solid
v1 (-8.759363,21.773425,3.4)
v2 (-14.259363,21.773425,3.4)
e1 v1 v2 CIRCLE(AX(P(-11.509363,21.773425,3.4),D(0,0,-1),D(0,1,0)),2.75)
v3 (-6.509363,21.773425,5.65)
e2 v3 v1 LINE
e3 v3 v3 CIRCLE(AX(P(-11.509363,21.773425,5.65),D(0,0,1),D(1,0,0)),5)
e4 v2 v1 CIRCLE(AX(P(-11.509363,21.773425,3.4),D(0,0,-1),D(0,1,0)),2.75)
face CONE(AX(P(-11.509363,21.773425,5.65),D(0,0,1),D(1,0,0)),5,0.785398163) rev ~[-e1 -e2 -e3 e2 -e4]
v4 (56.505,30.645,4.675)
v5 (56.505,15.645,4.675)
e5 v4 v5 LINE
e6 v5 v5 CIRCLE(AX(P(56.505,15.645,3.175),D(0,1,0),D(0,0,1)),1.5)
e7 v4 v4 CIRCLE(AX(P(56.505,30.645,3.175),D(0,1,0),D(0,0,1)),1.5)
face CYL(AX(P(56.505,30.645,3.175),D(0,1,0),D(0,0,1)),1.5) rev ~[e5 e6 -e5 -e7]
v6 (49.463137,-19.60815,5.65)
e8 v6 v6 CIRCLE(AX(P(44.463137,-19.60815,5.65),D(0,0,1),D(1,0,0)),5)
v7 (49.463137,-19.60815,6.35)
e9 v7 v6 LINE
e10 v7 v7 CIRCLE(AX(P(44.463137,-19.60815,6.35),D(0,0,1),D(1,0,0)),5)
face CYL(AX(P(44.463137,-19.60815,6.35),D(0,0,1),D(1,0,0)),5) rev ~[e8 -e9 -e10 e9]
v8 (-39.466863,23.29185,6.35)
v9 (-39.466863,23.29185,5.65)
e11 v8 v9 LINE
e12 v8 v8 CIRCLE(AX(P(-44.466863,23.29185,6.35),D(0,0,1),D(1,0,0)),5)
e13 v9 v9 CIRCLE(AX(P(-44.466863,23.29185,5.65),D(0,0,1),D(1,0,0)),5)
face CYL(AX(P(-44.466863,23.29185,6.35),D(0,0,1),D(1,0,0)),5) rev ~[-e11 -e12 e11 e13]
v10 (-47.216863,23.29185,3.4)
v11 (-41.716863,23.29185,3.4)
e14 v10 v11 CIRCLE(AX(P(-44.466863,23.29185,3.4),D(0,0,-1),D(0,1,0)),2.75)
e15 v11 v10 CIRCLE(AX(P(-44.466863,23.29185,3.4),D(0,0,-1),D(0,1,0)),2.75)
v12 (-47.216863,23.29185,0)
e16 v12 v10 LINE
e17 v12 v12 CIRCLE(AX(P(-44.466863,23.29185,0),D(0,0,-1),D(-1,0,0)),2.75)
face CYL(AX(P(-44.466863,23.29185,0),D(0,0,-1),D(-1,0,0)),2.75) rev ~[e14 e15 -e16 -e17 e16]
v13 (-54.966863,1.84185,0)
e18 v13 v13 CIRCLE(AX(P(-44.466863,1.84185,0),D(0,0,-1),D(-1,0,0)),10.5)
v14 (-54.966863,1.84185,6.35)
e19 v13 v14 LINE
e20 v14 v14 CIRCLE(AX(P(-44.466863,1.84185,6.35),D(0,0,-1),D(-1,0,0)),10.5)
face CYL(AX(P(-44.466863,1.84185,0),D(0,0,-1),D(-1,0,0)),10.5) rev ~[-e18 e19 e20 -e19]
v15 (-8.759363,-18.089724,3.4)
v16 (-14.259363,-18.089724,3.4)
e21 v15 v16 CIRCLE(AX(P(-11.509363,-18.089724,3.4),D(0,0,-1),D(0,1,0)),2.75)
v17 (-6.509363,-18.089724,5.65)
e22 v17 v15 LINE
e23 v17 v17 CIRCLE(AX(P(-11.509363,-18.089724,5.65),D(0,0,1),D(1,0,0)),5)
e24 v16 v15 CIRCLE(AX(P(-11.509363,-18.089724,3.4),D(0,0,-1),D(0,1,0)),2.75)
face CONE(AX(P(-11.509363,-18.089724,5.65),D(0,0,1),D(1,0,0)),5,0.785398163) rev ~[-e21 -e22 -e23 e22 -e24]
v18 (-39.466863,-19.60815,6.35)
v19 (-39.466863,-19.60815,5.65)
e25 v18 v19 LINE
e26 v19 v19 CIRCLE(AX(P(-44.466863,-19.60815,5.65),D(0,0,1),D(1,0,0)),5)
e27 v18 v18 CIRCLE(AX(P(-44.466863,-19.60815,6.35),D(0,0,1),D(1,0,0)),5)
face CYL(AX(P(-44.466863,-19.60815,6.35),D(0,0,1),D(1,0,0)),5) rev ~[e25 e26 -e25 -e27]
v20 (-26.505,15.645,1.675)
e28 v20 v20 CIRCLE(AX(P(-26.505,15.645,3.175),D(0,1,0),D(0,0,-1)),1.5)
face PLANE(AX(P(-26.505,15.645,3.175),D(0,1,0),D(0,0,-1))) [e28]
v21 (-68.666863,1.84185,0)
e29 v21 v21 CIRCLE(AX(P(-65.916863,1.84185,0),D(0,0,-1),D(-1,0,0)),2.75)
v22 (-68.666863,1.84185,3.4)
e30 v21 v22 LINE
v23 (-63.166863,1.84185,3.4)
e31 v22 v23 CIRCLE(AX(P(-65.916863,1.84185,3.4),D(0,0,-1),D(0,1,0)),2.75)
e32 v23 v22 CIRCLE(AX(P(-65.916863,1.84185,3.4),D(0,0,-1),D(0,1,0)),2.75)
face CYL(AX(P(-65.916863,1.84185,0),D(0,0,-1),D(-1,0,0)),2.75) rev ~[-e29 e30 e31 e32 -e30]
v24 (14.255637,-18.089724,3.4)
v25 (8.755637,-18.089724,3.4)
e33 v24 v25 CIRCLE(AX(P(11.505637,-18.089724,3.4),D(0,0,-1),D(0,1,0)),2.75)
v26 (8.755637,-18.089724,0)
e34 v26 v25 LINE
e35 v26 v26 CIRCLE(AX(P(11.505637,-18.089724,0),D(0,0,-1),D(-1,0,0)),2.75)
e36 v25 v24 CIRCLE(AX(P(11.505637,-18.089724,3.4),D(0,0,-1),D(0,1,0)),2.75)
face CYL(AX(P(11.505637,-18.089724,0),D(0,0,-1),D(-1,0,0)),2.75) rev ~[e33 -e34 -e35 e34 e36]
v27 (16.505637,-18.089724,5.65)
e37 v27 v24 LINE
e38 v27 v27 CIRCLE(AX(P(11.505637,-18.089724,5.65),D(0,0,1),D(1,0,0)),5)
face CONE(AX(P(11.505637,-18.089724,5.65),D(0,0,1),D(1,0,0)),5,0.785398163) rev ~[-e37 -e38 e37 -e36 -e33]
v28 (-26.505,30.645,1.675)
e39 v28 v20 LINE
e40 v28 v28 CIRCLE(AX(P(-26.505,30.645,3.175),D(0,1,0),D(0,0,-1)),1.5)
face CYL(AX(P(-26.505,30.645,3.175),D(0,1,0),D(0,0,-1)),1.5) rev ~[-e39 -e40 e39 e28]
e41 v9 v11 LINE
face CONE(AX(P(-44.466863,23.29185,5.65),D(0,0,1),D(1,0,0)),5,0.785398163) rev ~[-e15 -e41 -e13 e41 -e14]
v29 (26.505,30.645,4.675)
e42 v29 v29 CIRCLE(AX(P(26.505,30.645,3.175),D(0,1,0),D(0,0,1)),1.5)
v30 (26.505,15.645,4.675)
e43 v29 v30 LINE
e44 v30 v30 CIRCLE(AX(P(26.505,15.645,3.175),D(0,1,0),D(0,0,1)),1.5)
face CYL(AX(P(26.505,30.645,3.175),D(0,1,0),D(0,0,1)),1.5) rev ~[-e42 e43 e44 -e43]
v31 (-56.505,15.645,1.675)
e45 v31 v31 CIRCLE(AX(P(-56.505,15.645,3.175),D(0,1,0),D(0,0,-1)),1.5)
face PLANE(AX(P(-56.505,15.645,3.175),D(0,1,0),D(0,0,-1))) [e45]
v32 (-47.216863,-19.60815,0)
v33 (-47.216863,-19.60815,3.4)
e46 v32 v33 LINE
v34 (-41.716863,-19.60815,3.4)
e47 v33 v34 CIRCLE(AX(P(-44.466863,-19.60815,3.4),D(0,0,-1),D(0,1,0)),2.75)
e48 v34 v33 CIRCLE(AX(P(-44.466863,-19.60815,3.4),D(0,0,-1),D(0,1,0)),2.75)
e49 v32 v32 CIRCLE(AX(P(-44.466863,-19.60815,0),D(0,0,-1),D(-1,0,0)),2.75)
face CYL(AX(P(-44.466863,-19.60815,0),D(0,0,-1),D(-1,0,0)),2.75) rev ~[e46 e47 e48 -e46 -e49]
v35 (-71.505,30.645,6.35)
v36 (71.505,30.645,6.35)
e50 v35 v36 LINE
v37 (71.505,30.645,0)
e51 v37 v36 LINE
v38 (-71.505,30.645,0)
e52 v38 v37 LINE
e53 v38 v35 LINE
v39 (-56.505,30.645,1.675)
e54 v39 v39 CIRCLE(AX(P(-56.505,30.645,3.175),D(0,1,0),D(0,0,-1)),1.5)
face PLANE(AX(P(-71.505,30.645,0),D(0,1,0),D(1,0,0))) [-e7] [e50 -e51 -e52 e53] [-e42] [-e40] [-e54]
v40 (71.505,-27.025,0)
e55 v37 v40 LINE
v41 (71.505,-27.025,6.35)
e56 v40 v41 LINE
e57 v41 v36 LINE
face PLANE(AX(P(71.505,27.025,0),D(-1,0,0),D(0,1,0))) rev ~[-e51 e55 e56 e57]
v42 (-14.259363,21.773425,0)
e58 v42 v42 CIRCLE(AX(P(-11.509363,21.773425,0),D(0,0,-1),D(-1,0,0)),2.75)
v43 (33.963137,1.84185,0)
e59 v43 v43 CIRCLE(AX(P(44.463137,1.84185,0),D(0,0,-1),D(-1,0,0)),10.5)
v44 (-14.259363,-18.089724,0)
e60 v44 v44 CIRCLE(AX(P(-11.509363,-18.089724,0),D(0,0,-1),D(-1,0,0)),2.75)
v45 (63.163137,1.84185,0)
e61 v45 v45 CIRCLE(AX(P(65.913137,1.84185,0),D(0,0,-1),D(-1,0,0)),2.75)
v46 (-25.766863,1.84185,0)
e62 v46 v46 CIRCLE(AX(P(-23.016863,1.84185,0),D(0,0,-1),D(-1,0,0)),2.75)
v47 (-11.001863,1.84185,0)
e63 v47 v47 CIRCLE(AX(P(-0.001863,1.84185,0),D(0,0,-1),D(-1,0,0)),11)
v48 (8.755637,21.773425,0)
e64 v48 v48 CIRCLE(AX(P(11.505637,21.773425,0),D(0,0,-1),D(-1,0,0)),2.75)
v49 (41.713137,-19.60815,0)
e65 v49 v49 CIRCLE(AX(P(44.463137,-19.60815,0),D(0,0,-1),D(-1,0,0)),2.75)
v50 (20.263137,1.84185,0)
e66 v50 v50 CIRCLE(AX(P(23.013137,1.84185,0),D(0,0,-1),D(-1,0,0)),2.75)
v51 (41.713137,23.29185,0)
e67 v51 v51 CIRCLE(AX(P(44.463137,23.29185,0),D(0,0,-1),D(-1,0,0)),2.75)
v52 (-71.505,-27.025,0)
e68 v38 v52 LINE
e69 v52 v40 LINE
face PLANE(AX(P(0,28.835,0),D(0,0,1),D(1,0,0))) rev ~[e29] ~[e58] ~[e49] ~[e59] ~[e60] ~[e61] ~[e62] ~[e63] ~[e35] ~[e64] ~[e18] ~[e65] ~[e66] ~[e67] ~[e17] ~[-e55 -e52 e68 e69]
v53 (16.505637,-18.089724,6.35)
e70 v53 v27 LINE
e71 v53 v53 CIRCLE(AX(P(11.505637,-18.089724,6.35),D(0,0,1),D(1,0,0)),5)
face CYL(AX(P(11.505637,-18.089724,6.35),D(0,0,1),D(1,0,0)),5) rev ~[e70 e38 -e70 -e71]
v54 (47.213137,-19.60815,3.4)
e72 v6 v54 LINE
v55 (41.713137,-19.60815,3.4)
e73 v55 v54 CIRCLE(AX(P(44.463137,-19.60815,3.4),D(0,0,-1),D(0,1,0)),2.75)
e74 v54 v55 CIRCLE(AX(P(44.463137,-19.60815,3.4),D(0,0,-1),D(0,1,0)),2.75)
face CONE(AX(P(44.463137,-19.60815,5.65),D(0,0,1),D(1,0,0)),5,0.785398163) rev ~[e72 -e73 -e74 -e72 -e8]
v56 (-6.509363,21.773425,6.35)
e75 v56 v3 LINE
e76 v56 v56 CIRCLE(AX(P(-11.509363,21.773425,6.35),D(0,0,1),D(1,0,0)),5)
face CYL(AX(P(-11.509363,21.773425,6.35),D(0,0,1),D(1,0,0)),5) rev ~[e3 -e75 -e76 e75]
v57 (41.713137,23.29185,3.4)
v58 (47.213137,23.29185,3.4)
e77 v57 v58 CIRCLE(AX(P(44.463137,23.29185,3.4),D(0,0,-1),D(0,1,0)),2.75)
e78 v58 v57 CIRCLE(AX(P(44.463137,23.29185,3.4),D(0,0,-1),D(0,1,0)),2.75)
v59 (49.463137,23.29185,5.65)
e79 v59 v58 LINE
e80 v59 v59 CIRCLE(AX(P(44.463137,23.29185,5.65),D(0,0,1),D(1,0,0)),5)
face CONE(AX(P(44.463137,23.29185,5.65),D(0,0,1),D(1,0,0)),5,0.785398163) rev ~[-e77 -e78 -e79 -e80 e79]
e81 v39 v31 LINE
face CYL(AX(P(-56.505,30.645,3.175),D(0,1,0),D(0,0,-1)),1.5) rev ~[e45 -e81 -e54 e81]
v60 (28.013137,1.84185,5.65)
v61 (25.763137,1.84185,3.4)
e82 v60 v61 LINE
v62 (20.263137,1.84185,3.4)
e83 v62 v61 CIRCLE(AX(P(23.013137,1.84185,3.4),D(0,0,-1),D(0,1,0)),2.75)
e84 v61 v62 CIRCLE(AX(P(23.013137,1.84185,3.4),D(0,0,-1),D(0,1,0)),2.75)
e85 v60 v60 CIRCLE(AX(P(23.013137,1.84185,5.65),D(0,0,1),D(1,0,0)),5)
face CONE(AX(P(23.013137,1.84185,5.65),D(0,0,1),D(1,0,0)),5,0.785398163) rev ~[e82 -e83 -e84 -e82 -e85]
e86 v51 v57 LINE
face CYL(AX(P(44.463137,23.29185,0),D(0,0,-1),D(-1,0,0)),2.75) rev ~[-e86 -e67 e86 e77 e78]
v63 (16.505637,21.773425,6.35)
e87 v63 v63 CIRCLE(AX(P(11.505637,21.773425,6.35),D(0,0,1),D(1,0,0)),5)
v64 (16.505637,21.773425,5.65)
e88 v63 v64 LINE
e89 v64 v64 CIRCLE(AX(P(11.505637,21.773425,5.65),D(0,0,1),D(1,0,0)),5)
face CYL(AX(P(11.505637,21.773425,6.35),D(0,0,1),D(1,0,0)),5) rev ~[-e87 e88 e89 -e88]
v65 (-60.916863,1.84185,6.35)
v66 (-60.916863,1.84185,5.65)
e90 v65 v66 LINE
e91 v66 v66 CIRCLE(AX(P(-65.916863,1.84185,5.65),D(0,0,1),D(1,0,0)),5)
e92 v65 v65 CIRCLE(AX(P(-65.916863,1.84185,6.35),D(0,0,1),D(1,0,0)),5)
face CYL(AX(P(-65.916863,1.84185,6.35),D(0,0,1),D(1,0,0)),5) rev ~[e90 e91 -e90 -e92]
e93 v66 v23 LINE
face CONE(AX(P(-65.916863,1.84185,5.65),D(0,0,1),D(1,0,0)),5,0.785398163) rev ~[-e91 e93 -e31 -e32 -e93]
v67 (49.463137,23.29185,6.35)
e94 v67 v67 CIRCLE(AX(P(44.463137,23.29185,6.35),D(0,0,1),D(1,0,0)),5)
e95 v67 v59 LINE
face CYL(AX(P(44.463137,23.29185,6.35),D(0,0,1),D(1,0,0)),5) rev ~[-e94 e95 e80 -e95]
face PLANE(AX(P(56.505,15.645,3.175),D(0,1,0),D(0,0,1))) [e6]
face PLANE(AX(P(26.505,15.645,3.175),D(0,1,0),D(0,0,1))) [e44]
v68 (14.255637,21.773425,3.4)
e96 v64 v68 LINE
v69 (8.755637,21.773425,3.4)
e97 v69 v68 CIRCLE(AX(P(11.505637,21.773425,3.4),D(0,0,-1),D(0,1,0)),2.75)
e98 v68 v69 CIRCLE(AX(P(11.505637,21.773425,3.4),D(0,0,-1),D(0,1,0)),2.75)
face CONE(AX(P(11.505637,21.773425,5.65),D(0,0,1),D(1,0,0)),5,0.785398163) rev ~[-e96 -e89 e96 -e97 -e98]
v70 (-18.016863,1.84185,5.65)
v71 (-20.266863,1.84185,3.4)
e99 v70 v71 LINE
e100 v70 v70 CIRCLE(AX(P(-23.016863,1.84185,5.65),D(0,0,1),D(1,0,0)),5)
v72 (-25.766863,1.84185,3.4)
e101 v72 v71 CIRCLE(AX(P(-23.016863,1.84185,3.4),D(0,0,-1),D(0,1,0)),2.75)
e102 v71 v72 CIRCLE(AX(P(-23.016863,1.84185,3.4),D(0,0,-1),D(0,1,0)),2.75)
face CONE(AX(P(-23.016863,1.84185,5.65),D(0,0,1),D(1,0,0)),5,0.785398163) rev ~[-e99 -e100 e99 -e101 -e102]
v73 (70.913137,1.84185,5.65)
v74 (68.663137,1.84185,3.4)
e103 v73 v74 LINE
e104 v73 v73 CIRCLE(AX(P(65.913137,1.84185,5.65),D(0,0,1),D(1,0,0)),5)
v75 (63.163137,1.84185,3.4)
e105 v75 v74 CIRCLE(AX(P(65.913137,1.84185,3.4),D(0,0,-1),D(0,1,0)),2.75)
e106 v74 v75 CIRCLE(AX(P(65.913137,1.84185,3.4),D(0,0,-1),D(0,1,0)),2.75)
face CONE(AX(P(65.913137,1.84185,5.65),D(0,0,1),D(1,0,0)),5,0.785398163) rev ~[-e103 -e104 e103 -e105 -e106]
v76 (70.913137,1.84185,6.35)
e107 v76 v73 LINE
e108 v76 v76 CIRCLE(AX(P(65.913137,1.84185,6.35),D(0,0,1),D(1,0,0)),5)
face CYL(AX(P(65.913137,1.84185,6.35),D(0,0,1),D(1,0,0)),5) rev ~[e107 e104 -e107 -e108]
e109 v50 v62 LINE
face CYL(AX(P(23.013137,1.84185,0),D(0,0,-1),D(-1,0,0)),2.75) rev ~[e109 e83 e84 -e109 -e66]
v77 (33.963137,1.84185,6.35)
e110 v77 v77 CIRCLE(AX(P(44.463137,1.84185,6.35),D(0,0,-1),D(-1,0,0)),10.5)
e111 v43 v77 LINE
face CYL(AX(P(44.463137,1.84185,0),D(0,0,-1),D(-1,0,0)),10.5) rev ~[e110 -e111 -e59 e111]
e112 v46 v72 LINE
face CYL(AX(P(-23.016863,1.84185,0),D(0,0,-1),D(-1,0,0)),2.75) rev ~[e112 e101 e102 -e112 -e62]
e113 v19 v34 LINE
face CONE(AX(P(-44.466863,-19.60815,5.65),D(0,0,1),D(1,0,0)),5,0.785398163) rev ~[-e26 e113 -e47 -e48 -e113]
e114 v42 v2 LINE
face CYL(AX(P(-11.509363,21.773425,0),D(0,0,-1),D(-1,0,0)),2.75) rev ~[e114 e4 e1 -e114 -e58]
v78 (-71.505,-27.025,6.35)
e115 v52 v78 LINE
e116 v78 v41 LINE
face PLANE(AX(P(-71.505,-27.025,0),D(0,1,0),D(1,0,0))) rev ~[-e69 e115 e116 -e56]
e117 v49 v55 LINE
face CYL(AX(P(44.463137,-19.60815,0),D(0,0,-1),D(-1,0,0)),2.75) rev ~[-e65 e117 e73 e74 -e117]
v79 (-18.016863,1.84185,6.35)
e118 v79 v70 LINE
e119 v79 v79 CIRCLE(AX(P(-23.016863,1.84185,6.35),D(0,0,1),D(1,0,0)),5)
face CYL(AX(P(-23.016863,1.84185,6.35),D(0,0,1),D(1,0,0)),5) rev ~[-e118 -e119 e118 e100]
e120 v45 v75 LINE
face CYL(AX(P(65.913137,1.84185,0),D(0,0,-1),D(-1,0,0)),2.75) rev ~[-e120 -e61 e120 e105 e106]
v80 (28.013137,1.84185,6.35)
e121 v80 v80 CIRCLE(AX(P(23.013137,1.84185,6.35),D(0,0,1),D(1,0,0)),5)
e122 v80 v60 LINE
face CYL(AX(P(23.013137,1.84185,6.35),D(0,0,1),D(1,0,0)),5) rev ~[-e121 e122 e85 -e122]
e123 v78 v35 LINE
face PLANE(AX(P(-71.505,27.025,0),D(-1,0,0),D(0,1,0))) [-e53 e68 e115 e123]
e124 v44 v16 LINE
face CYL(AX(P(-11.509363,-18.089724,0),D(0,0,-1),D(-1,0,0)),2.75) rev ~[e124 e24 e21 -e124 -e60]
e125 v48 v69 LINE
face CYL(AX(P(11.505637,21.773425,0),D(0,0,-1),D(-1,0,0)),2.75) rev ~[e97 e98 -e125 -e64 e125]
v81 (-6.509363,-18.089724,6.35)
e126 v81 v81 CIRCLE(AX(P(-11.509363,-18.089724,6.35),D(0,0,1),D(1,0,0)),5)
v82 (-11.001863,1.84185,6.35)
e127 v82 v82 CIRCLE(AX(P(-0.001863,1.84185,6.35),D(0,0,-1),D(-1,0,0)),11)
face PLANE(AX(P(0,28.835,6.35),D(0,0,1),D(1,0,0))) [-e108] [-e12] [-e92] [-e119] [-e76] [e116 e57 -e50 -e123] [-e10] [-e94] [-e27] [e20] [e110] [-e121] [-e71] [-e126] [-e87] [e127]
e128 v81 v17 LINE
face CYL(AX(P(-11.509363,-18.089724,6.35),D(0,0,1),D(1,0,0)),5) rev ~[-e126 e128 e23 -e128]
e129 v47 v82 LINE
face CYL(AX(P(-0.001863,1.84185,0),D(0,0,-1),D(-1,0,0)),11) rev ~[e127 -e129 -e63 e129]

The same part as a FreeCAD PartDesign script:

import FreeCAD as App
import Part
import Sketcher
from FreeCAD import Vector


def faces_at(feature, points):
    """Names of the faces that lie closest to the given points."""
    faces = feature.Shape.Faces
    near = lambda p: min(range(len(faces)), key=lambda i: faces[i].distToShape(Part.Vertex(*p))[0])
    return sorted({f"Face{near(p) + 1}" for p in points})

doc = App.newDocument("Part")
body = doc.addObject("PartDesign::Body", "Body")

sketch1 = body.newObject("Sketcher::SketchObject", "Sketch")
sketch1.AttachmentSupport = (doc.getObject("XY_Plane"), [""])
sketch1.MapMode = "FlatFace"
sketch1.addGeometry([
    Part.LineSegment(Vector(-71.505, 27.025, 0), Vector(-71.505, -27.025, 0)),
    Part.LineSegment(Vector(-71.505, -27.025, 0), Vector(71.505, -27.025, 0)),
    Part.LineSegment(Vector(71.505, -27.025, 0), Vector(71.505, 27.025, 0)),
    Part.LineSegment(Vector(71.505, 27.025, 0), Vector(-71.505, 27.025, 0)),
], False)
sketch1.addConstraint([
    Sketcher.Constraint("Coincident", 0, 2, 1, 1),
    Sketcher.Constraint("Coincident", 1, 2, 2, 1),
    Sketcher.Constraint("Coincident", 2, 2, 3, 1),
    Sketcher.Constraint("Coincident", 3, 2, 0, 1),
    Sketcher.Constraint("Vertical", 0),
    Sketcher.Constraint("Horizontal", 1),
    Sketcher.Constraint("Vertical", 2),
    Sketcher.Constraint("Horizontal", 3),
    Sketcher.Constraint("Symmetric", 0, 2, 2, 2, -1, 1),
    Sketcher.Constraint("DistanceX", 1, 1, 1, 2, 143.01),
    Sketcher.Constraint("DistanceY", 0, 2, 0, 1, 54.05),
])
pad1 = body.newObject("PartDesign::Pad", "Pad")
pad1.Profile = sketch1
pad1.Length = 6.35

sketch2 = body.newObject("Sketcher::SketchObject", "Sketch001")
sketch2.AttachmentSupport = (doc.getObject("XY_Plane"), [""])
sketch2.MapMode = "FlatFace"
sketch2.addGeometry([
    Part.Circle(Vector(44.463137, 23.29185, 0), Vector(0, 0, 1), 2.75),
    Part.Circle(Vector(65.913137, 1.84185, 0), Vector(0, 0, 1), 2.75),
    Part.Circle(Vector(44.463137, -19.60815, 0), Vector(0, 0, 1), 2.75),
    Part.Circle(Vector(23.013137, 1.84185, 0), Vector(0, 0, 1), 2.75),
    Part.Circle(Vector(11.505637, 21.773425, 0), Vector(0, 0, 1), 2.75),
    Part.Circle(Vector(-11.509363, 21.773425, 0), Vector(0, 0, 1), 2.75),
    Part.Circle(Vector(-23.016863, 1.84185, 0), Vector(0, 0, 1), 2.75),
    Part.Circle(Vector(-11.509363, -18.089724, 0), Vector(0, 0, 1), 2.75),
    Part.Circle(Vector(11.505637, -18.089724, 0), Vector(0, 0, 1), 2.75),
    Part.Circle(Vector(-44.466863, -19.60815, 0), Vector(0, 0, 1), 2.75),
    Part.Circle(Vector(-65.916863, 1.84185, 0), Vector(0, 0, 1), 2.75),
    Part.Circle(Vector(-44.466863, 23.29185, 0), Vector(0, 0, 1), 2.75),
], False)
sketch2.addConstraint([
    Sketcher.Constraint("Equal", 0, 1),
    Sketcher.Constraint("Equal", 1, 2),
    Sketcher.Constraint("Equal", 2, 3),
    Sketcher.Constraint("Equal", 3, 4),
    Sketcher.Constraint("Equal", 4, 5),
    Sketcher.Constraint("Equal", 5, 6),
    Sketcher.Constraint("Equal", 6, 7),
    Sketcher.Constraint("Equal", 7, 8),
    Sketcher.Constraint("Equal", 8, 9),
    Sketcher.Constraint("Equal", 9, 10),
    Sketcher.Constraint("Equal", 10, 11),
    Sketcher.Constraint("Horizontal", 1, 3, 3, 3),
    Sketcher.Constraint("Horizontal", 4, 3, 5, 3),
    Sketcher.Constraint("Horizontal", 3, 3, 6, 3),
    Sketcher.Constraint("Horizontal", 7, 3, 8, 3),
    Sketcher.Constraint("Horizontal", 2, 3, 9, 3),
    Sketcher.Constraint("Horizontal", 6, 3, 10, 3),
    Sketcher.Constraint("Horizontal", 0, 3, 11, 3),
    Sketcher.Constraint("Vertical", 0, 3, 2, 3),
    Sketcher.Constraint("Vertical", 5, 3, 7, 3),
    Sketcher.Constraint("Vertical", 4, 3, 8, 3),
    Sketcher.Constraint("Vertical", 9, 3, 11, 3),
    Sketcher.Constraint("Diameter", 0, 5.5),
    Sketcher.Constraint("DistanceY", 2, 3, 0, 3, 42.9),
    Sketcher.Constraint("DistanceX", 3, 3, 1, 3, 42.9),
    Sketcher.Constraint("DistanceX", 10, 3, 6, 3, 42.9),
    Sketcher.Constraint("DistanceX", 0, 3, 1, 3, 21.45),
    Sketcher.Constraint("DistanceY", 1, 3, 0, 3, 21.45),
    Sketcher.Constraint("DistanceX", 6, 3, 3, 3, 46.03),
    Sketcher.Constraint("DistanceX", 9, 3, 6, 3, 21.45),
    Sketcher.Constraint("DistanceX", 5, 3, 4, 3, 23.015),
    Sketcher.Constraint("DistanceX", 4, 3, 3, 3, 11.5075),
    Sketcher.Constraint("DistanceY", -1, 1, 0, 3, 23.29185),
    Sketcher.Constraint("DistanceY", 7, 3, 5, 3, 39.863149),
    Sketcher.Constraint("DistanceX", -1, 1, 0, 3, 44.463137),
    Sketcher.Constraint("DistanceY", -1, 1, 4, 3, 21.773425),
])
pocket1 = body.newObject("PartDesign::Pocket", "Pocket")
pocket1.Profile = sketch2
pocket1.Length = 10
pocket1.Reversed = True

sketch3 = body.newObject("Sketcher::SketchObject", "Sketch002")
sketch3.AttachmentSupport = (doc.getObject("XY_Plane"), [""])
sketch3.MapMode = "FlatFace"
sketch3.addGeometry([
    Part.Circle(Vector(44.463137, 1.84185, 0), Vector(0, 0, 1), 10.5),
    Part.Circle(Vector(-0.001863, 1.84185, 0), Vector(0, 0, 1), 11),
    Part.Circle(Vector(-44.466863, 1.84185, 0), Vector(0, 0, 1), 10.5),
], False)
sketch3.addConstraint([
    Sketcher.Constraint("Equal", 0, 2),
    Sketcher.Constraint("Horizontal", 0, 3, 1, 3),
    Sketcher.Constraint("Horizontal", 1, 3, 2, 3),
    Sketcher.Constraint("Diameter", 0, 21.0),
    Sketcher.Constraint("Diameter", 1, 22.0),
    Sketcher.Constraint("DistanceX", 2, 3, 0, 3, 88.93),
    Sketcher.Constraint("DistanceX", 1, 3, 0, 3, 44.465),
    Sketcher.Constraint("DistanceY", -1, 1, 0, 3, 1.84185),
    Sketcher.Constraint("DistanceX", -1, 1, 0, 3, 44.463137),
])
pocket2 = body.newObject("PartDesign::Pocket", "Pocket001")
pocket2.Profile = sketch3
pocket2.Length = 10
pocket2.Reversed = True

sketch4 = body.newObject("Sketcher::SketchObject", "Sketch003")
sketch4.AttachmentSupport = (doc.getObject("XY_Plane"), [""])
sketch4.MapMode = "FlatFace"
sketch4.addGeometry([
    Part.LineSegment(Vector(-71.505, 30.645, 0), Vector(-71.505, 27.025, 0)),
    Part.LineSegment(Vector(-71.505, 27.025, 0), Vector(71.505, 27.025, 0)),
    Part.LineSegment(Vector(71.505, 27.025, 0), Vector(71.505, 30.645, 0)),
    Part.LineSegment(Vector(71.505, 30.645, 0), Vector(-71.505, 30.645, 0)),
], False)
sketch4.addConstraint([
    Sketcher.Constraint("Coincident", 0, 2, 1, 1),
    Sketcher.Constraint("Coincident", 1, 2, 2, 1),
    Sketcher.Constraint("Coincident", 2, 2, 3, 1),
    Sketcher.Constraint("Coincident", 3, 2, 0, 1),
    Sketcher.Constraint("Vertical", 0),
    Sketcher.Constraint("Horizontal", 1),
    Sketcher.Constraint("Vertical", 2),
    Sketcher.Constraint("Horizontal", 3),
    Sketcher.Constraint("DistanceX", 1, 1, 1, 2, 143.01),
    Sketcher.Constraint("DistanceY", 0, 2, 0, 1, 3.62),
    Sketcher.Constraint("DistanceX", 0, 2, -1, 1, 71.505),
    Sketcher.Constraint("DistanceY", -1, 1, 0, 2, 27.025),
])
pad2 = body.newObject("PartDesign::Pad", "Pad001")
pad2.Profile = sketch4
pad2.Length = 6.35

sketch5 = body.newObject("Sketcher::SketchObject", "Sketch004")
sketch5.AttachmentSupport = (doc.getObject("XZ_Plane"), [""])
sketch5.MapMode = "FlatFace"
sketch5.AttachmentOffset = App.Placement(Vector(0, 0, -30.645), App.Rotation())
sketch5.addGeometry([
    Part.Circle(Vector(56.505, 3.175, 0), Vector(0, 0, 1), 1.5),
    Part.Circle(Vector(26.505, 3.175, 0), Vector(0, 0, 1), 1.5),
    Part.Circle(Vector(-26.505, 3.175, 0), Vector(0, 0, 1), 1.5),
    Part.Circle(Vector(-56.505, 3.175, 0), Vector(0, 0, 1), 1.5),
], False)
sketch5.addConstraint([
    Sketcher.Constraint("Equal", 0, 1),
    Sketcher.Constraint("Equal", 1, 2),
    Sketcher.Constraint("Equal", 2, 3),
    Sketcher.Constraint("Symmetric", 1, 3, 2, 3, -2),
    Sketcher.Constraint("Symmetric", 0, 3, 3, 3, -2),
    Sketcher.Constraint("Horizontal", 0, 3, 1, 3),
    Sketcher.Constraint("Diameter", 0, 3.0),
    Sketcher.Constraint("DistanceX", 1, 3, 0, 3, 30.0),
    Sketcher.Constraint("DistanceX", 2, 3, 1, 3, 53.01),
    Sketcher.Constraint("DistanceY", -1, 1, 0, 3, 3.175),
])
pocket3 = body.newObject("PartDesign::Pocket", "Pocket002")
pocket3.Profile = sketch5
pocket3.Length = 15
pocket3.Reversed = True

sketch6 = body.newObject("Sketcher::SketchObject", "Sketch005")
sketch6.AttachmentSupport = (doc.getObject("XY_Plane"), [""])
sketch6.MapMode = "FlatFace"
sketch6.AttachmentOffset = App.Placement(Vector(0, 0, 6.35), App.Rotation())
sketch6.addGeometry([
    Part.Circle(Vector(44.463137, -19.60815, 0), Vector(0, 0, 1), 5),
    Part.Circle(Vector(65.913137, 1.84185, 0), Vector(0, 0, 1), 5),
    Part.Circle(Vector(44.463137, 23.29185, 0), Vector(0, 0, 1), 5),
    Part.Circle(Vector(23.013137, 1.84185, 0), Vector(0, 0, 1), 5),
    Part.Circle(Vector(11.505637, -18.089724, 0), Vector(0, 0, 1), 5),
    Part.Circle(Vector(11.505637, 21.773425, 0), Vector(0, 0, 1), 5),
    Part.Circle(Vector(-11.509363, 21.773425, 0), Vector(0, 0, 1), 5),
    Part.Circle(Vector(-23.016863, 1.84185, 0), Vector(0, 0, 1), 5),
    Part.Circle(Vector(-11.509363, -18.089724, 0), Vector(0, 0, 1), 5),
    Part.Circle(Vector(-44.466863, 23.29185, 0), Vector(0, 0, 1), 5),
    Part.Circle(Vector(-65.916863, 1.84185, 0), Vector(0, 0, 1), 5),
    Part.Circle(Vector(-44.466863, -19.60815, 0), Vector(0, 0, 1), 5),
], False)
sketch6.addConstraint([
    Sketcher.Constraint("Equal", 0, 1),
    Sketcher.Constraint("Equal", 1, 2),
    Sketcher.Constraint("Equal", 2, 3),
    Sketcher.Constraint("Equal", 3, 4),
    Sketcher.Constraint("Equal", 4, 5),
    Sketcher.Constraint("Equal", 5, 6),
    Sketcher.Constraint("Equal", 6, 7),
    Sketcher.Constraint("Equal", 7, 8),
    Sketcher.Constraint("Equal", 8, 9),
    Sketcher.Constraint("Equal", 9, 10),
    Sketcher.Constraint("Equal", 10, 11),
    Sketcher.Constraint("Horizontal", 1, 3, 3, 3),
    Sketcher.Constraint("Horizontal", 5, 3, 6, 3),
    Sketcher.Constraint("Horizontal", 3, 3, 7, 3),
    Sketcher.Constraint("Horizontal", 4, 3, 8, 3),
    Sketcher.Constraint("Horizontal", 2, 3, 9, 3),
    Sketcher.Constraint("Horizontal", 7, 3, 10, 3),
    Sketcher.Constraint("Horizontal", 0, 3, 11, 3),
    Sketcher.Constraint("Vertical", 0, 3, 2, 3),
    Sketcher.Constraint("Vertical", 4, 3, 5, 3),
    Sketcher.Constraint("Vertical", 6, 3, 8, 3),
    Sketcher.Constraint("Vertical", 9, 3, 11, 3),
    Sketcher.Constraint("Diameter", 0, 10.0),
    Sketcher.Constraint("DistanceY", 0, 3, 2, 3, 42.9),
    Sketcher.Constraint("DistanceX", 3, 3, 1, 3, 42.9),
    Sketcher.Constraint("DistanceX", 10, 3, 7, 3, 42.9),
    Sketcher.Constraint("DistanceX", 0, 3, 1, 3, 21.45),
    Sketcher.Constraint("DistanceY", 0, 3, 1, 3, 21.45),
    Sketcher.Constraint("DistanceX", 7, 3, 3, 3, 46.03),
    Sketcher.Constraint("DistanceX", 9, 3, 7, 3, 21.45),
    Sketcher.Constraint("DistanceX", 6, 3, 5, 3, 23.015),
    Sketcher.Constraint("DistanceX", 4, 3, 3, 3, 11.5075),
    Sketcher.Constraint("DistanceY", 0, 3, -1, 1, 19.60815),
    Sketcher.Constraint("DistanceY", 4, 3, 5, 3, 39.863149),
    Sketcher.Constraint("DistanceX", -1, 1, 0, 3, 44.463137),
    Sketcher.Constraint("DistanceY", 4, 3, -1, 1, 18.089724),
])
pocket4 = body.newObject("PartDesign::Pocket", "Pocket003")
pocket4.Profile = sketch6
pocket4.Length = 0.7
body2 = doc.addObject("PartDesign::Body", "Body001")

sketch7 = body2.newObject("Sketcher::SketchObject", "Sketch006")
sketch7.AttachmentSupport = (doc.getObject("XY_Plane001"), [""])
sketch7.MapMode = "FlatFace"
sketch7.AttachmentOffset = App.Placement(Vector(0, 0, 5.65), App.Rotation())
sketch7.addGeometry(Part.Circle(Vector(-65.916863, 1.84185, 0), Vector(0, 0, 1), 5), False)
sketch7.addConstraint([
    Sketcher.Constraint("Diameter", 0, 10.0),
    Sketcher.Constraint("DistanceY", -1, 1, 0, 3, 1.84185),
    Sketcher.Constraint("DistanceX", 0, 3, -1, 1, 65.916863),
])
pad3 = body2.newObject("PartDesign::Pad", "Pad002")
pad3.Profile = sketch7
pad3.Length = 2.5
pad3.Reversed = True
doc.recompute()

datumplane = body2.newObject("PartDesign::Plane", "DatumPlane")
datumplane.AttachmentSupport = (doc.getObject("XY_Plane001"), [""])
datumplane.MapMode = "FlatFace"
datumplane.AttachmentOffset = App.Placement(Vector(0, 0, 5.65), App.Rotation())
draft = body2.newObject("PartDesign::Draft", "Draft")
draft.Base = (pad3, faces_at(pad3, [(-70.917, 1.842, 4.4)]))
draft.NeutralPlane = (datumplane, [""])
draft.Angle = 45
draft.Reversed = True
doc.recompute()

boolean = body.newObject("PartDesign::Boolean", "Boolean")
boolean.Type = "Cut"
boolean.addObjects([body2])
body3 = doc.addObject("PartDesign::Body", "Body002")

sketch8 = body3.newObject("Sketcher::SketchObject", "Sketch007")
sketch8.AttachmentSupport = (doc.getObject("XY_Plane002"), [""])
sketch8.MapMode = "FlatFace"
sketch8.AttachmentOffset = App.Placement(Vector(0, 0, 5.65), App.Rotation())
sketch8.addGeometry(Part.Circle(Vector(-44.466863, 23.29185, 0), Vector(0, 0, 1), 5), False)
sketch8.addConstraint([
    Sketcher.Constraint("Diameter", 0, 10.0),
    Sketcher.Constraint("DistanceY", -1, 1, 0, 3, 23.29185),
    Sketcher.Constraint("DistanceX", 0, 3, -1, 1, 44.466863),
])
pad4 = body3.newObject("PartDesign::Pad", "Pad003")
pad4.Profile = sketch8
pad4.Length = 2.5
pad4.Reversed = True
doc.recompute()

datumplane2 = body3.newObject("PartDesign::Plane", "DatumPlane001")
datumplane2.AttachmentSupport = (doc.getObject("XY_Plane002"), [""])
datumplane2.MapMode = "FlatFace"
datumplane2.AttachmentOffset = App.Placement(Vector(0, 0, 5.65), App.Rotation())
draft2 = body3.newObject("PartDesign::Draft", "Draft001")
draft2.Base = (pad4, faces_at(pad4, [(-49.467, 23.292, 4.4)]))
draft2.NeutralPlane = (datumplane2, [""])
draft2.Angle = 45
draft2.Reversed = True
doc.recompute()

boolean2 = body.newObject("PartDesign::Boolean", "Boolean001")
boolean2.Type = "Cut"
boolean2.addObjects([body3])
body4 = doc.addObject("PartDesign::Body", "Body003")

sketch9 = body4.newObject("Sketcher::SketchObject", "Sketch008")
sketch9.AttachmentSupport = (doc.getObject("XY_Plane003"), [""])
sketch9.MapMode = "FlatFace"
sketch9.AttachmentOffset = App.Placement(Vector(0, 0, 5.65), App.Rotation())
sketch9.addGeometry(Part.Circle(Vector(-23.016863, 1.84185, 0), Vector(0, 0, 1), 5), False)
sketch9.addConstraint([
    Sketcher.Constraint("Diameter", 0, 10.0),
    Sketcher.Constraint("DistanceY", -1, 1, 0, 3, 1.84185),
    Sketcher.Constraint("DistanceX", 0, 3, -1, 1, 23.016863),
])
pad5 = body4.newObject("PartDesign::Pad", "Pad004")
pad5.Profile = sketch9
pad5.Length = 2.5
pad5.Reversed = True
doc.recompute()

datumplane3 = body4.newObject("PartDesign::Plane", "DatumPlane002")
datumplane3.AttachmentSupport = (doc.getObject("XY_Plane003"), [""])
datumplane3.MapMode = "FlatFace"
datumplane3.AttachmentOffset = App.Placement(Vector(0, 0, 5.65), App.Rotation())
draft3 = body4.newObject("PartDesign::Draft", "Draft002")
draft3.Base = (pad5, faces_at(pad5, [(-28.017, 1.842, 4.4)]))
draft3.NeutralPlane = (datumplane3, [""])
draft3.Angle = 45
draft3.Reversed = True
doc.recompute()

boolean3 = body.newObject("PartDesign::Boolean", "Boolean002")
boolean3.Type = "Cut"
boolean3.addObjects([body4])
body5 = doc.addObject("PartDesign::Body", "Body004")

sketch10 = body5.newObject("Sketcher::SketchObject", "Sketch009")
sketch10.AttachmentSupport = (doc.getObject("XY_Plane004"), [""])
sketch10.MapMode = "FlatFace"
sketch10.AttachmentOffset = App.Placement(Vector(0, 0, 5.65), App.Rotation())
sketch10.addGeometry(Part.Circle(Vector(-11.509363, 21.773425, 0), Vector(0, 0, 1), 5), False)
sketch10.addConstraint([
    Sketcher.Constraint("Diameter", 0, 10.0),
    Sketcher.Constraint("DistanceX", 0, 3, -1, 1, 11.509363),
    Sketcher.Constraint("DistanceY", -1, 1, 0, 3, 21.773425),
])
pad6 = body5.newObject("PartDesign::Pad", "Pad005")
pad6.Profile = sketch10
pad6.Length = 2.5
pad6.Reversed = True
doc.recompute()

datumplane4 = body5.newObject("PartDesign::Plane", "DatumPlane003")
datumplane4.AttachmentSupport = (doc.getObject("XY_Plane004"), [""])
datumplane4.MapMode = "FlatFace"
datumplane4.AttachmentOffset = App.Placement(Vector(0, 0, 5.65), App.Rotation())
draft4 = body5.newObject("PartDesign::Draft", "Draft003")
draft4.Base = (pad6, faces_at(pad6, [(-16.509, 21.773, 4.4)]))
draft4.NeutralPlane = (datumplane4, [""])
draft4.Angle = 45
draft4.Reversed = True
doc.recompute()

boolean4 = body.newObject("PartDesign::Boolean", "Boolean003")
boolean4.Type = "Cut"
boolean4.addObjects([body5])
body6 = doc.addObject("PartDesign::Body", "Body005")

sketch11 = body6.newObject("Sketcher::SketchObject", "Sketch010")
sketch11.AttachmentSupport = (doc.getObject("XY_Plane005"), [""])
sketch11.MapMode = "FlatFace"
sketch11.AttachmentOffset = App.Placement(Vector(0, 0, 5.65), App.Rotation())
sketch11.addGeometry(Part.Circle(Vector(-44.466863, -19.60815, 0), Vector(0, 0, 1), 5), False)
sketch11.addConstraint([
    Sketcher.Constraint("Diameter", 0, 10.0),
    Sketcher.Constraint("DistanceY", 0, 3, -1, 1, 19.60815),
    Sketcher.Constraint("DistanceX", 0, 3, -1, 1, 44.466863),
])
pad7 = body6.newObject("PartDesign::Pad", "Pad006")
pad7.Profile = sketch11
pad7.Length = 2.5
pad7.Reversed = True
doc.recompute()

datumplane5 = body6.newObject("PartDesign::Plane", "DatumPlane004")
datumplane5.AttachmentSupport = (doc.getObject("XY_Plane005"), [""])
datumplane5.MapMode = "FlatFace"
datumplane5.AttachmentOffset = App.Placement(Vector(0, 0, 5.65), App.Rotation())
draft5 = body6.newObject("PartDesign::Draft", "Draft004")
draft5.Base = (pad7, faces_at(pad7, [(-49.467, -19.608, 4.4)]))
draft5.NeutralPlane = (datumplane5, [""])
draft5.Angle = 45
draft5.Reversed = True
doc.recompute()

boolean5 = body.newObject("PartDesign::Boolean", "Boolean004")
boolean5.Type = "Cut"
boolean5.addObjects([body6])
body7 = doc.addObject("PartDesign::Body", "Body006")

sketch12 = body7.newObject("Sketcher::SketchObject", "Sketch011")
sketch12.AttachmentSupport = (doc.getObject("XY_Plane006"), [""])
sketch12.MapMode = "FlatFace"
sketch12.AttachmentOffset = App.Placement(Vector(0, 0, 5.65), App.Rotation())
sketch12.addGeometry(Part.Circle(Vector(-11.509363, -18.089724, 0), Vector(0, 0, 1), 5), False)
sketch12.addConstraint([
    Sketcher.Constraint("Diameter", 0, 10.0),
    Sketcher.Constraint("DistanceX", 0, 3, -1, 1, 11.509363),
    Sketcher.Constraint("DistanceY", 0, 3, -1, 1, 18.089724),
])
pad8 = body7.newObject("PartDesign::Pad", "Pad007")
pad8.Profile = sketch12
pad8.Length = 2.5
pad8.Reversed = True
doc.recompute()

datumplane6 = body7.newObject("PartDesign::Plane", "DatumPlane005")
datumplane6.AttachmentSupport = (doc.getObject("XY_Plane006"), [""])
datumplane6.MapMode = "FlatFace"
datumplane6.AttachmentOffset = App.Placement(Vector(0, 0, 5.65), App.Rotation())
draft6 = body7.newObject("PartDesign::Draft", "Draft005")
draft6.Base = (pad8, faces_at(pad8, [(-16.509, -18.09, 4.4)]))
draft6.NeutralPlane = (datumplane6, [""])
draft6.Angle = 45
draft6.Reversed = True
doc.recompute()

boolean6 = body.newObject("PartDesign::Boolean", "Boolean005")
boolean6.Type = "Cut"
boolean6.addObjects([body7])
body8 = doc.addObject("PartDesign::Body", "Body007")

sketch13 = body8.newObject("Sketcher::SketchObject", "Sketch012")
sketch13.AttachmentSupport = (doc.getObject("XY_Plane007"), [""])
sketch13.MapMode = "FlatFace"
sketch13.AttachmentOffset = App.Placement(Vector(0, 0, 5.65), App.Rotation())
sketch13.addGeometry(Part.Circle(Vector(11.505637, -18.089724, 0), Vector(0, 0, 1), 5), False)
sketch13.addConstraint([
    Sketcher.Constraint("Diameter", 0, 10.0),
    Sketcher.Constraint("DistanceX", -1, 1, 0, 3, 11.505637),
    Sketcher.Constraint("DistanceY", 0, 3, -1, 1, 18.089724),
])
pad9 = body8.newObject("PartDesign::Pad", "Pad008")
pad9.Profile = sketch13
pad9.Length = 2.5
pad9.Reversed = True
doc.recompute()

datumplane7 = body8.newObject("PartDesign::Plane", "DatumPlane006")
datumplane7.AttachmentSupport = (doc.getObject("XY_Plane007"), [""])
datumplane7.MapMode = "FlatFace"
datumplane7.AttachmentOffset = App.Placement(Vector(0, 0, 5.65), App.Rotation())
draft7 = body8.newObject("PartDesign::Draft", "Draft006")
draft7.Base = (pad9, faces_at(pad9, [(6.506, -18.09, 4.4)]))
draft7.NeutralPlane = (datumplane7, [""])
draft7.Angle = 45
draft7.Reversed = True
doc.recompute()

boolean7 = body.newObject("PartDesign::Boolean", "Boolean006")
boolean7.Type = "Cut"
boolean7.addObjects([body8])
body9 = doc.addObject("PartDesign::Body", "Body008")

sketch14 = body9.newObject("Sketcher::SketchObject", "Sketch013")
sketch14.AttachmentSupport = (doc.getObject("XY_Plane008"), [""])
sketch14.MapMode = "FlatFace"
sketch14.AttachmentOffset = App.Placement(Vector(0, 0, 5.65), App.Rotation())
sketch14.addGeometry(Part.Circle(Vector(44.463137, -19.60815, 0), Vector(0, 0, 1), 5), False)
sketch14.addConstraint([
    Sketcher.Constraint("Diameter", 0, 10.0),
    Sketcher.Constraint("DistanceY", 0, 3, -1, 1, 19.60815),
    Sketcher.Constraint("DistanceX", -1, 1, 0, 3, 44.463137),
])
pad10 = body9.newObject("PartDesign::Pad", "Pad009")
pad10.Profile = sketch14
pad10.Length = 2.5
pad10.Reversed = True
doc.recompute()

datumplane8 = body9.newObject("PartDesign::Plane", "DatumPlane007")
datumplane8.AttachmentSupport = (doc.getObject("XY_Plane008"), [""])
datumplane8.MapMode = "FlatFace"
datumplane8.AttachmentOffset = App.Placement(Vector(0, 0, 5.65), App.Rotation())
draft8 = body9.newObject("PartDesign::Draft", "Draft007")
draft8.Base = (pad10, faces_at(pad10, [(39.463, -19.608, 4.4)]))
draft8.NeutralPlane = (datumplane8, [""])
draft8.Angle = 45
draft8.Reversed = True
doc.recompute()

boolean8 = body.newObject("PartDesign::Boolean", "Boolean007")
boolean8.Type = "Cut"
boolean8.addObjects([body9])
body10 = doc.addObject("PartDesign::Body", "Body009")

sketch15 = body10.newObject("Sketcher::SketchObject", "Sketch014")
sketch15.AttachmentSupport = (doc.getObject("XY_Plane009"), [""])
sketch15.MapMode = "FlatFace"
sketch15.AttachmentOffset = App.Placement(Vector(0, 0, 5.65), App.Rotation())
sketch15.addGeometry(Part.Circle(Vector(23.013137, 1.84185, 0), Vector(0, 0, 1), 5), False)
sketch15.addConstraint([
    Sketcher.Constraint("Diameter", 0, 10.0),
    Sketcher.Constraint("DistanceY", -1, 1, 0, 3, 1.84185),
    Sketcher.Constraint("DistanceX", -1, 1, 0, 3, 23.013137),
])
pad11 = body10.newObject("PartDesign::Pad", "Pad010")
pad11.Profile = sketch15
pad11.Length = 2.5
pad11.Reversed = True
doc.recompute()

datumplane9 = body10.newObject("PartDesign::Plane", "DatumPlane008")
datumplane9.AttachmentSupport = (doc.getObject("XY_Plane009"), [""])
datumplane9.MapMode = "FlatFace"
datumplane9.AttachmentOffset = App.Placement(Vector(0, 0, 5.65), App.Rotation())
draft9 = body10.newObject("PartDesign::Draft", "Draft008")
draft9.Base = (pad11, faces_at(pad11, [(18.013, 1.842, 4.4)]))
draft9.NeutralPlane = (datumplane9, [""])
draft9.Angle = 45
draft9.Reversed = True
doc.recompute()

boolean9 = body.newObject("PartDesign::Boolean", "Boolean008")
boolean9.Type = "Cut"
boolean9.addObjects([body10])
body11 = doc.addObject("PartDesign::Body", "Body010")

sketch16 = body11.newObject("Sketcher::SketchObject", "Sketch015")
sketch16.AttachmentSupport = (doc.getObject("XY_Plane010"), [""])
sketch16.MapMode = "FlatFace"
sketch16.AttachmentOffset = App.Placement(Vector(0, 0, 5.65), App.Rotation())
sketch16.addGeometry(Part.Circle(Vector(65.913137, 1.84185, 0), Vector(0, 0, 1), 5), False)
sketch16.addConstraint([
    Sketcher.Constraint("Diameter", 0, 10.0),
    Sketcher.Constraint("DistanceY", -1, 1, 0, 3, 1.84185),
    Sketcher.Constraint("DistanceX", -1, 1, 0, 3, 65.913137),
])
pad12 = body11.newObject("PartDesign::Pad", "Pad011")
pad12.Profile = sketch16
pad12.Length = 2.5
pad12.Reversed = True
doc.recompute()

datumplane10 = body11.newObject("PartDesign::Plane", "DatumPlane009")
datumplane10.AttachmentSupport = (doc.getObject("XY_Plane010"), [""])
datumplane10.MapMode = "FlatFace"
datumplane10.AttachmentOffset = App.Placement(Vector(0, 0, 5.65), App.Rotation())
draft10 = body11.newObject("PartDesign::Draft", "Draft009")
draft10.Base = (pad12, faces_at(pad12, [(60.913, 1.842, 4.4)]))
draft10.NeutralPlane = (datumplane10, [""])
draft10.Angle = 45
draft10.Reversed = True
doc.recompute()

boolean10 = body.newObject("PartDesign::Boolean", "Boolean009")
boolean10.Type = "Cut"
boolean10.addObjects([body11])
body12 = doc.addObject("PartDesign::Body", "Body011")

sketch17 = body12.newObject("Sketcher::SketchObject", "Sketch016")
sketch17.AttachmentSupport = (doc.getObject("XY_Plane011"), [""])
sketch17.MapMode = "FlatFace"
sketch17.AttachmentOffset = App.Placement(Vector(0, 0, 5.65), App.Rotation())
sketch17.addGeometry(Part.Circle(Vector(44.463137, 23.29185, 0), Vector(0, 0, 1), 5), False)
sketch17.addConstraint([
    Sketcher.Constraint("Diameter", 0, 10.0),
    Sketcher.Constraint("DistanceY", -1, 1, 0, 3, 23.29185),
    Sketcher.Constraint("DistanceX", -1, 1, 0, 3, 44.463137),
])
pad13 = body12.newObject("PartDesign::Pad", "Pad012")
pad13.Profile = sketch17
pad13.Length = 2.5
pad13.Reversed = True
doc.recompute()

datumplane11 = body12.newObject("PartDesign::Plane", "DatumPlane010")
datumplane11.AttachmentSupport = (doc.getObject("XY_Plane011"), [""])
datumplane11.MapMode = "FlatFace"
datumplane11.AttachmentOffset = App.Placement(Vector(0, 0, 5.65), App.Rotation())
draft11 = body12.newObject("PartDesign::Draft", "Draft010")
draft11.Base = (pad13, faces_at(pad13, [(39.463, 23.292, 4.4)]))
draft11.NeutralPlane = (datumplane11, [""])
draft11.Angle = 45
draft11.Reversed = True
doc.recompute()

boolean11 = body.newObject("PartDesign::Boolean", "Boolean010")
boolean11.Type = "Cut"
boolean11.addObjects([body12])
body13 = doc.addObject("PartDesign::Body", "Body012")

sketch18 = body13.newObject("Sketcher::SketchObject", "Sketch017")
sketch18.AttachmentSupport = (doc.getObject("XY_Plane012"), [""])
sketch18.MapMode = "FlatFace"
sketch18.AttachmentOffset = App.Placement(Vector(0, 0, 5.65), App.Rotation())
sketch18.addGeometry(Part.Circle(Vector(11.505637, 21.773425, 0), Vector(0, 0, 1), 5), False)
sketch18.addConstraint([
    Sketcher.Constraint("Diameter", 0, 10.0),
    Sketcher.Constraint("DistanceX", -1, 1, 0, 3, 11.505637),
    Sketcher.Constraint("DistanceY", -1, 1, 0, 3, 21.773425),
])
pad14 = body13.newObject("PartDesign::Pad", "Pad013")
pad14.Profile = sketch18
pad14.Length = 2.5
pad14.Reversed = True
doc.recompute()

datumplane12 = body13.newObject("PartDesign::Plane", "DatumPlane011")
datumplane12.AttachmentSupport = (doc.getObject("XY_Plane012"), [""])
datumplane12.MapMode = "FlatFace"
datumplane12.AttachmentOffset = App.Placement(Vector(0, 0, 5.65), App.Rotation())
draft12 = body13.newObject("PartDesign::Draft", "Draft011")
draft12.Base = (pad14, faces_at(pad14, [(6.506, 21.773, 4.4)]))
draft12.NeutralPlane = (datumplane12, [""])
draft12.Angle = 45
draft12.Reversed = True
doc.recompute()

boolean12 = body.newObject("PartDesign::Boolean", "Boolean011")
boolean12.Type = "Cut"
boolean12.addObjects([body13])

doc.recompute()
